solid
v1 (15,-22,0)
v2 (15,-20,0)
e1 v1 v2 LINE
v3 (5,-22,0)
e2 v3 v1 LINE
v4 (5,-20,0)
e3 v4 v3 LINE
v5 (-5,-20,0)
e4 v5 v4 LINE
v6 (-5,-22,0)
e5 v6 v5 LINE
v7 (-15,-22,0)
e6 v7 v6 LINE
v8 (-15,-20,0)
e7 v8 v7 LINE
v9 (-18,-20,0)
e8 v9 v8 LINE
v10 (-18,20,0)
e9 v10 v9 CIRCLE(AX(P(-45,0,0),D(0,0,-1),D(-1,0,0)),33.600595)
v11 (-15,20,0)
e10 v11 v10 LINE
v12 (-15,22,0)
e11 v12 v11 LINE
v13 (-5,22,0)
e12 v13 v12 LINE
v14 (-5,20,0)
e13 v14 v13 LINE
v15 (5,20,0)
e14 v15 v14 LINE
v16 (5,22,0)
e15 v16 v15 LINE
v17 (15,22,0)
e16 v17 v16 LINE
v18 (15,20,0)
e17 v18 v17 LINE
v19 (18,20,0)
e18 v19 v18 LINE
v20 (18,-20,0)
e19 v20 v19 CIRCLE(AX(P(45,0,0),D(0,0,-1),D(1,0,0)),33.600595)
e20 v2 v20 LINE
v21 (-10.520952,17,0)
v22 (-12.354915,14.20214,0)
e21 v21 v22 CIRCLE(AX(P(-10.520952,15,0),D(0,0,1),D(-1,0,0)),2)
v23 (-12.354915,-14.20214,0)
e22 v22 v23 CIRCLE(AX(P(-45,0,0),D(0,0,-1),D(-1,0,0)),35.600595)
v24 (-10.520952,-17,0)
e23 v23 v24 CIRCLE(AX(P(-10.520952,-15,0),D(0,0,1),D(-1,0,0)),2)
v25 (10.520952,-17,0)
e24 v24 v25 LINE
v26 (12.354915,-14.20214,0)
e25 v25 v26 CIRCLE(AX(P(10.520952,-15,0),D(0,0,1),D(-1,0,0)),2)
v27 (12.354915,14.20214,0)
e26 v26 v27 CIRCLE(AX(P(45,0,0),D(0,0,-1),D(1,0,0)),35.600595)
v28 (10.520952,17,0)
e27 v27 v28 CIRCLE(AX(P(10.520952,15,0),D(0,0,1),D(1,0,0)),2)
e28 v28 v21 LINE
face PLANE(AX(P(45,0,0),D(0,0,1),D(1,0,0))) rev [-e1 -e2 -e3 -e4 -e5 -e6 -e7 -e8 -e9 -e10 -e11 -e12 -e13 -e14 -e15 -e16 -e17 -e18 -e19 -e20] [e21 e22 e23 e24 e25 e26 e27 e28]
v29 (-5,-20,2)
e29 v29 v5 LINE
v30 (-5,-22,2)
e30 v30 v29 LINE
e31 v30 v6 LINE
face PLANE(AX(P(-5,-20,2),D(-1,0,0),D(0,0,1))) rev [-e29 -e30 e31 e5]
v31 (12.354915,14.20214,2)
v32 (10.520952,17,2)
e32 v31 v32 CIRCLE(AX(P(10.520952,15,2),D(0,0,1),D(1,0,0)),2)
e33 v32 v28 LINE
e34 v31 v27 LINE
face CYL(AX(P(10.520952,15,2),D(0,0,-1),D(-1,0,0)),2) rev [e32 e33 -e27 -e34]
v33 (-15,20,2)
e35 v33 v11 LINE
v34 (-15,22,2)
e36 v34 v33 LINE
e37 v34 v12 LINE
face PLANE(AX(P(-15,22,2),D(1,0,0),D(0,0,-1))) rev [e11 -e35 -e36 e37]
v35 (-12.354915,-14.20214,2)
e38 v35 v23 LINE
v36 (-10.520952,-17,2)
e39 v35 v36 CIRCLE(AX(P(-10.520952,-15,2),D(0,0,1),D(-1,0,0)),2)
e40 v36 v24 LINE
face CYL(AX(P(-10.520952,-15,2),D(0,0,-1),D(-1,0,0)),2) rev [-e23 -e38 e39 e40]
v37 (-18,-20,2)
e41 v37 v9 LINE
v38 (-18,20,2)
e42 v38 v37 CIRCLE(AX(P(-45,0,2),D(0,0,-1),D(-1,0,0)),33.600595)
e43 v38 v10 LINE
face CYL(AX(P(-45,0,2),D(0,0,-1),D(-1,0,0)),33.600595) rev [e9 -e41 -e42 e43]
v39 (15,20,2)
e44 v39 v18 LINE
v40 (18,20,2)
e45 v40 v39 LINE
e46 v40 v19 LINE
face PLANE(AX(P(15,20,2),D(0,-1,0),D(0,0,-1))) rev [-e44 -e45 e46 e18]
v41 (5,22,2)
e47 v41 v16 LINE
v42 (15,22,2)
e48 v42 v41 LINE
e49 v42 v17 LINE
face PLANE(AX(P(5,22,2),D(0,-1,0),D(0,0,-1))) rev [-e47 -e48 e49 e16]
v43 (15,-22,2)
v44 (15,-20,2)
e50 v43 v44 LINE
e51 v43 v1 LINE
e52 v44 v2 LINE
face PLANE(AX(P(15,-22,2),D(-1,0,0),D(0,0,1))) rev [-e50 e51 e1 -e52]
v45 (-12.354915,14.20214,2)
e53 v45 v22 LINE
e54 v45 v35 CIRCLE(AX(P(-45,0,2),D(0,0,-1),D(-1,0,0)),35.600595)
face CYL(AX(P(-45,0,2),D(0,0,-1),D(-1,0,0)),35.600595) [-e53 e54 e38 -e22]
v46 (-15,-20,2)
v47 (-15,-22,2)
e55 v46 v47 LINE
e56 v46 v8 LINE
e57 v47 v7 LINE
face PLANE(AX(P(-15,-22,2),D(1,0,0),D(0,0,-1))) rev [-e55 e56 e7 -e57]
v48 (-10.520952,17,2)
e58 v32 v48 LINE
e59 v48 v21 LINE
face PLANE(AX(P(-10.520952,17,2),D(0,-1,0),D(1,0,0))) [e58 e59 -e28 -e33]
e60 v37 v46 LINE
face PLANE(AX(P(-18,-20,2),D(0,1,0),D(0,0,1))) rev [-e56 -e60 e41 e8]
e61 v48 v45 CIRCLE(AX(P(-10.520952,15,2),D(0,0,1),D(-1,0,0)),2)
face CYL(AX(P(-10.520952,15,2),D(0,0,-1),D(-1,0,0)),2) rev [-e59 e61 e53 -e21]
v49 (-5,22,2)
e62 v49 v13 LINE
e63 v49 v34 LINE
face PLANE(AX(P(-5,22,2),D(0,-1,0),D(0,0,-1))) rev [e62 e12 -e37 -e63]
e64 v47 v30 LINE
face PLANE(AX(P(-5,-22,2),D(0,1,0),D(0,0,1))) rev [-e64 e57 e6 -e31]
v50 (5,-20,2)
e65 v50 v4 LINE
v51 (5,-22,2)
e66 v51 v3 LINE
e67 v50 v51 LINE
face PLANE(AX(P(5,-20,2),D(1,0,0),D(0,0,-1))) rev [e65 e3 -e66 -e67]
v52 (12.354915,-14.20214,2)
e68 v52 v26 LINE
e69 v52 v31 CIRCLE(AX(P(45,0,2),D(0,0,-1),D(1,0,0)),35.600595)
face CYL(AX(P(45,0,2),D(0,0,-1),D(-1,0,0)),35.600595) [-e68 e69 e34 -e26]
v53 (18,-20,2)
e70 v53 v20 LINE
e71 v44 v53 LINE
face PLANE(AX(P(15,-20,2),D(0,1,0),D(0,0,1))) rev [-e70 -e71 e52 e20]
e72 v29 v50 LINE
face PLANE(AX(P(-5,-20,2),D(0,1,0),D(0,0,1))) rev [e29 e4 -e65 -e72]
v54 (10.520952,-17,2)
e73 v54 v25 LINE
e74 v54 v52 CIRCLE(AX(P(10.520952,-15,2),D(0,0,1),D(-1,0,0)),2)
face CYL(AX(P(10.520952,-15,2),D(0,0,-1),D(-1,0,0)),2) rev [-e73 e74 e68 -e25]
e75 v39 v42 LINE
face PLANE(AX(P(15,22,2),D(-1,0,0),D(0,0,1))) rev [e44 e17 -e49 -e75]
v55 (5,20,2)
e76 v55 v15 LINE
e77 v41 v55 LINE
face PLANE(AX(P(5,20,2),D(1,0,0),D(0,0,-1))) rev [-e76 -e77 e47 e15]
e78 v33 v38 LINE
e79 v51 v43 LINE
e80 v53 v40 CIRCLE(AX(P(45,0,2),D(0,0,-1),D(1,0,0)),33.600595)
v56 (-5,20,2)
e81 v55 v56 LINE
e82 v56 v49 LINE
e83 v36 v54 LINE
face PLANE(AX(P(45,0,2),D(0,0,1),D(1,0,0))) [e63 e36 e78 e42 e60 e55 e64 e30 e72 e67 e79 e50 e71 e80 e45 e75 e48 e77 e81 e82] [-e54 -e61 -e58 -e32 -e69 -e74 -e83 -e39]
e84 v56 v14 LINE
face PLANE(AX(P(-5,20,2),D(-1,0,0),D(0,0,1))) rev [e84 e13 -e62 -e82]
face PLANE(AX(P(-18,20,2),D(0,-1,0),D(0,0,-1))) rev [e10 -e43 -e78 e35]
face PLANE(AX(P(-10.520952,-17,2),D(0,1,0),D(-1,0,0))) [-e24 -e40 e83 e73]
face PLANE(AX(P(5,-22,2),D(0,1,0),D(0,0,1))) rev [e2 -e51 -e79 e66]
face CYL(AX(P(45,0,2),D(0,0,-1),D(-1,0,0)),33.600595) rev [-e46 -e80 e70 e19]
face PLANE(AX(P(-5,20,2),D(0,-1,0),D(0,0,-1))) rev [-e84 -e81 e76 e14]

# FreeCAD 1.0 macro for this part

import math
import FreeCAD as App
import Part
import Sketcher

V = App.Vector
Q = App.Units.Quantity

doc = App.newDocument("Part")
body = doc.addObject("PartDesign::Body", "Body")

# Sketch on XY plane
sketch1 = body.newObject("Sketcher::SketchObject", "Sketch")
sketch1.AttachmentSupport = (doc.getObject("XY_Plane"), [""])
sketch1.MapMode = "FlatFace"
sketch1.addGeometry(Part.LineSegment(V(-15, 20, 0), V(-18, 20, 0)), False)
sketch1.addGeometry(Part.ArcOfCircle(Part.Circle(V(-45, 0, 0), V(0, 0, 1), 33.600595), math.radians(-36.528855), math.radians(36.528855)), False)
sketch1.addGeometry(Part.LineSegment(V(-18, -20, 0), V(-15, -20, 0)), False)
sketch1.addGeometry(Part.LineSegment(V(-15, -20, 0), V(-15, -22, 0)), False)
sketch1.addGeometry(Part.LineSegment(V(-15, -22, 0), V(-5, -22, 0)), False)
sketch1.addGeometry(Part.LineSegment(V(-5, -22, 0), V(-5, -20, 0)), False)
sketch1.addGeometry(Part.LineSegment(V(-5, -20, 0), V(5, -20, 0)), False)
sketch1.addGeometry(Part.LineSegment(V(5, -20, 0), V(5, -22, 0)), False)
sketch1.addGeometry(Part.LineSegment(V(5, -22, 0), V(15, -22, 0)), False)
sketch1.addGeometry(Part.LineSegment(V(15, -22, 0), V(15, -20, 0)), False)
sketch1.addGeometry(Part.LineSegment(V(15, -20, 0), V(18, -20, 0)), False)
sketch1.addGeometry(Part.ArcOfCircle(Part.Circle(V(45, 0, 0), V(0, 0, 1), 33.600595), math.radians(143.471145), math.radians(216.528855)), False)
sketch1.addGeometry(Part.LineSegment(V(18, 20, 0), V(15, 20, 0)), False)
sketch1.addGeometry(Part.LineSegment(V(15, 20, 0), V(15, 22, 0)), False)
sketch1.addGeometry(Part.LineSegment(V(15, 22, 0), V(5, 22, 0)), False)
sketch1.addGeometry(Part.LineSegment(V(5, 22, 0), V(5, 20, 0)), False)
sketch1.addGeometry(Part.LineSegment(V(5, 20, 0), V(-5, 20, 0)), False)
sketch1.addGeometry(Part.LineSegment(V(-5, 20, 0), V(-5, 22, 0)), False)
sketch1.addGeometry(Part.LineSegment(V(-5, 22, 0), V(-15, 22, 0)), False)
sketch1.addGeometry(Part.LineSegment(V(-15, 22, 0), V(-15, 20, 0)), False)
sketch1.addGeometry(Part.ArcOfCircle(Part.Circle(V(-10.520952, -15, 0), V(0, 0, 1), 2), math.radians(156.488704), math.radians(270)), False)
sketch1.addGeometry(Part.ArcOfCircle(Part.Circle(V(-45, 0, 0), V(0, 0, 1), 35.600595), math.radians(-23.511296), math.radians(23.511296)), False)
sketch1.addGeometry(Part.ArcOfCircle(Part.Circle(V(-10.520952, 15, 0), V(0, 0, 1), 2), math.radians(90), math.radians(203.511296)), False)
sketch1.addGeometry(Part.LineSegment(V(-10.520952, 17, 0), V(10.520952, 17, 0)), False)
sketch1.addGeometry(Part.ArcOfCircle(Part.Circle(V(10.520952, 15, 0), V(0, 0, 1), 2), math.radians(-23.511296), math.radians(90)), False)
sketch1.addGeometry(Part.ArcOfCircle(Part.Circle(V(45, 0, 0), V(0, 0, 1), 35.600595), math.radians(156.488704), math.radians(203.511296)), False)
sketch1.addGeometry(Part.ArcOfCircle(Part.Circle(V(10.520952, -15, 0), V(0, 0, 1), 2), math.radians(-90), math.radians(23.511296)), False)
sketch1.addGeometry(Part.LineSegment(V(10.520952, -17, 0), V(-10.520952, -17, 0)), False)
sketch1.addConstraint(Sketcher.Constraint("Coincident", 0, 2, 1, 2))
sketch1.addConstraint(Sketcher.Constraint("Coincident", 1, 1, 2, 1))
sketch1.addConstraint(Sketcher.Constraint("Coincident", 2, 2, 3, 1))
sketch1.addConstraint(Sketcher.Constraint("Coincident", 3, 2, 4, 1))
sketch1.addConstraint(Sketcher.Constraint("Coincident", 4, 2, 5, 1))
sketch1.addConstraint(Sketcher.Constraint("Coincident", 5, 2, 6, 1))
sketch1.addConstraint(Sketcher.Constraint("Coincident", 6, 2, 7, 1))
sketch1.addConstraint(Sketcher.Constraint("Coincident", 7, 2, 8, 1))
sketch1.addConstraint(Sketcher.Constraint("Coincident", 8, 2, 9, 1))
sketch1.addConstraint(Sketcher.Constraint("Coincident", 9, 2, 10, 1))
sketch1.addConstraint(Sketcher.Constraint("Coincident", 10, 2, 11, 2))
sketch1.addConstraint(Sketcher.Constraint("Coincident", 11, 1, 12, 1))
sketch1.addConstraint(Sketcher.Constraint("Coincident", 12, 2, 13, 1))
sketch1.addConstraint(Sketcher.Constraint("Coincident", 13, 2, 14, 1))
sketch1.addConstraint(Sketcher.Constraint("Coincident", 14, 2, 15, 1))
sketch1.addConstraint(Sketcher.Constraint("Coincident", 15, 2, 16, 1))
sketch1.addConstraint(Sketcher.Constraint("Coincident", 16, 2, 17, 1))
sketch1.addConstraint(Sketcher.Constraint("Coincident", 17, 2, 18, 1))
sketch1.addConstraint(Sketcher.Constraint("Coincident", 18, 2, 19, 1))
sketch1.addConstraint(Sketcher.Constraint("Coincident", 19, 2, 0, 1))
sketch1.addConstraint(Sketcher.Constraint("Tangent", 20, 1, 21, 1))
sketch1.addConstraint(Sketcher.Constraint("Tangent", 21, 2, 22, 2))
sketch1.addConstraint(Sketcher.Constraint("Tangent", 22, 1, 23, 1))
sketch1.addConstraint(Sketcher.Constraint("Tangent", 23, 2, 24, 2))
sketch1.addConstraint(Sketcher.Constraint("Tangent", 24, 1, 25, 1))
sketch1.addConstraint(Sketcher.Constraint("Tangent", 25, 2, 26, 2))
sketch1.addConstraint(Sketcher.Constraint("Tangent", 26, 1, 27, 1))
sketch1.addConstraint(Sketcher.Constraint("Tangent", 27, 2, 20, 2))
sketch1.addConstraint(Sketcher.Constraint("Horizontal", 0))
sketch1.addConstraint(Sketcher.Constraint("Horizontal", 2))
sketch1.addConstraint(Sketcher.Constraint("Vertical", 3))
sketch1.addConstraint(Sketcher.Constraint("Horizontal", 4))
sketch1.addConstraint(Sketcher.Constraint("Vertical", 5))
sketch1.addConstraint(Sketcher.Constraint("Horizontal", 6))
sketch1.addConstraint(Sketcher.Constraint("Vertical", 7))
sketch1.addConstraint(Sketcher.Constraint("Horizontal", 8))
sketch1.addConstraint(Sketcher.Constraint("Vertical", 9))
sketch1.addConstraint(Sketcher.Constraint("Horizontal", 10))
sketch1.addConstraint(Sketcher.Constraint("Horizontal", 12))
sketch1.addConstraint(Sketcher.Constraint("Vertical", 13))
sketch1.addConstraint(Sketcher.Constraint("Horizontal", 14))
sketch1.addConstraint(Sketcher.Constraint("Vertical", 15))
sketch1.addConstraint(Sketcher.Constraint("Horizontal", 16))
sketch1.addConstraint(Sketcher.Constraint("Vertical", 17))
sketch1.addConstraint(Sketcher.Constraint("Horizontal", 18))
sketch1.addConstraint(Sketcher.Constraint("Vertical", 19))
sketch1.addConstraint(Sketcher.Constraint("Horizontal", 23))
sketch1.addConstraint(Sketcher.Constraint("Horizontal", 27))
sketch1.addConstraint(Sketcher.Constraint("Coincident", 21, 3, 1, 3))
sketch1.addConstraint(Sketcher.Constraint("Coincident", 25, 3, 11, 3))
sketch1.addConstraint(Sketcher.Constraint("Equal", 1, 11))
sketch1.addConstraint(Sketcher.Constraint("Equal", 20, 22))
sketch1.addConstraint(Sketcher.Constraint("Equal", 22, 24))
sketch1.addConstraint(Sketcher.Constraint("Equal", 21, 25))
sketch1.addConstraint(Sketcher.Constraint("Equal", 24, 26))
sketch1.addConstraint(Sketcher.Constraint("Symmetric", 1, 3, 11, 3, -1, 1))
sketch1.addConstraint(Sketcher.Constraint("Symmetric", 2, 2, 12, 2, -1, 1))
sketch1.addConstraint(Sketcher.Constraint("Symmetric", 4, 2, 14, 2, -1, 1))
sketch1.addConstraint(Sketcher.Constraint("Symmetric", 6, 2, 16, 2, -1, 1))
sketch1.addConstraint(Sketcher.Constraint("Symmetric", 8, 2, 18, 2, -1, 1))
sketch1.addConstraint(Sketcher.Constraint("Symmetric", 4, 2, 7, 2, -2))
sketch1.addConstraint(Sketcher.Constraint("Symmetric", 2, 2, 9, 2, -2))
sketch1.addConstraint(Sketcher.Constraint("Symmetric", 0, 2, 11, 1, -2))
sketch1.addConstraint(Sketcher.Constraint("Horizontal", 2, 2, 5, 2))
sketch1.addConstraint(Sketcher.Constraint("Vertical", 20, 3, 22, 3))
sketch1.addConstraint(Sketcher.Constraint("Equal", 4, 6))
sketch1.addConstraint(Sketcher.Constraint("Radius", 20, Q("2 mm")))
sketch1.addConstraint(Sketcher.Constraint("DistanceX", 0, 2, 0, 1, Q("3 mm")))
sketch1.addConstraint(Sketcher.Constraint("DistanceX", 4, 1, 4, 2, Q("10 mm")))
sketch1.addConstraint(Sketcher.Constraint("DistanceY", 3, 2, 3, 1, Q("2 mm")))
sketch1.addConstraint(Sketcher.Constraint("DistanceX", 1, 3, -1, 1, Q("45 mm")))
sketch1.addConstraint(Sketcher.Constraint("DistanceY", 20, 3, -1, 1, Q("15 mm")))
sketch1.addConstraint(Sketcher.Constraint("DistanceY", -1, 1, 0, 2, Q("20 mm")))
sketch1.addConstraint(Sketcher.Constraint("Radius", 21, Q("35.600595 mm")))
pad1 = body.newObject("PartDesign::Pad", "Pad")
pad1.Profile = sketch1
pad1.Length = 2

doc.recompute()
